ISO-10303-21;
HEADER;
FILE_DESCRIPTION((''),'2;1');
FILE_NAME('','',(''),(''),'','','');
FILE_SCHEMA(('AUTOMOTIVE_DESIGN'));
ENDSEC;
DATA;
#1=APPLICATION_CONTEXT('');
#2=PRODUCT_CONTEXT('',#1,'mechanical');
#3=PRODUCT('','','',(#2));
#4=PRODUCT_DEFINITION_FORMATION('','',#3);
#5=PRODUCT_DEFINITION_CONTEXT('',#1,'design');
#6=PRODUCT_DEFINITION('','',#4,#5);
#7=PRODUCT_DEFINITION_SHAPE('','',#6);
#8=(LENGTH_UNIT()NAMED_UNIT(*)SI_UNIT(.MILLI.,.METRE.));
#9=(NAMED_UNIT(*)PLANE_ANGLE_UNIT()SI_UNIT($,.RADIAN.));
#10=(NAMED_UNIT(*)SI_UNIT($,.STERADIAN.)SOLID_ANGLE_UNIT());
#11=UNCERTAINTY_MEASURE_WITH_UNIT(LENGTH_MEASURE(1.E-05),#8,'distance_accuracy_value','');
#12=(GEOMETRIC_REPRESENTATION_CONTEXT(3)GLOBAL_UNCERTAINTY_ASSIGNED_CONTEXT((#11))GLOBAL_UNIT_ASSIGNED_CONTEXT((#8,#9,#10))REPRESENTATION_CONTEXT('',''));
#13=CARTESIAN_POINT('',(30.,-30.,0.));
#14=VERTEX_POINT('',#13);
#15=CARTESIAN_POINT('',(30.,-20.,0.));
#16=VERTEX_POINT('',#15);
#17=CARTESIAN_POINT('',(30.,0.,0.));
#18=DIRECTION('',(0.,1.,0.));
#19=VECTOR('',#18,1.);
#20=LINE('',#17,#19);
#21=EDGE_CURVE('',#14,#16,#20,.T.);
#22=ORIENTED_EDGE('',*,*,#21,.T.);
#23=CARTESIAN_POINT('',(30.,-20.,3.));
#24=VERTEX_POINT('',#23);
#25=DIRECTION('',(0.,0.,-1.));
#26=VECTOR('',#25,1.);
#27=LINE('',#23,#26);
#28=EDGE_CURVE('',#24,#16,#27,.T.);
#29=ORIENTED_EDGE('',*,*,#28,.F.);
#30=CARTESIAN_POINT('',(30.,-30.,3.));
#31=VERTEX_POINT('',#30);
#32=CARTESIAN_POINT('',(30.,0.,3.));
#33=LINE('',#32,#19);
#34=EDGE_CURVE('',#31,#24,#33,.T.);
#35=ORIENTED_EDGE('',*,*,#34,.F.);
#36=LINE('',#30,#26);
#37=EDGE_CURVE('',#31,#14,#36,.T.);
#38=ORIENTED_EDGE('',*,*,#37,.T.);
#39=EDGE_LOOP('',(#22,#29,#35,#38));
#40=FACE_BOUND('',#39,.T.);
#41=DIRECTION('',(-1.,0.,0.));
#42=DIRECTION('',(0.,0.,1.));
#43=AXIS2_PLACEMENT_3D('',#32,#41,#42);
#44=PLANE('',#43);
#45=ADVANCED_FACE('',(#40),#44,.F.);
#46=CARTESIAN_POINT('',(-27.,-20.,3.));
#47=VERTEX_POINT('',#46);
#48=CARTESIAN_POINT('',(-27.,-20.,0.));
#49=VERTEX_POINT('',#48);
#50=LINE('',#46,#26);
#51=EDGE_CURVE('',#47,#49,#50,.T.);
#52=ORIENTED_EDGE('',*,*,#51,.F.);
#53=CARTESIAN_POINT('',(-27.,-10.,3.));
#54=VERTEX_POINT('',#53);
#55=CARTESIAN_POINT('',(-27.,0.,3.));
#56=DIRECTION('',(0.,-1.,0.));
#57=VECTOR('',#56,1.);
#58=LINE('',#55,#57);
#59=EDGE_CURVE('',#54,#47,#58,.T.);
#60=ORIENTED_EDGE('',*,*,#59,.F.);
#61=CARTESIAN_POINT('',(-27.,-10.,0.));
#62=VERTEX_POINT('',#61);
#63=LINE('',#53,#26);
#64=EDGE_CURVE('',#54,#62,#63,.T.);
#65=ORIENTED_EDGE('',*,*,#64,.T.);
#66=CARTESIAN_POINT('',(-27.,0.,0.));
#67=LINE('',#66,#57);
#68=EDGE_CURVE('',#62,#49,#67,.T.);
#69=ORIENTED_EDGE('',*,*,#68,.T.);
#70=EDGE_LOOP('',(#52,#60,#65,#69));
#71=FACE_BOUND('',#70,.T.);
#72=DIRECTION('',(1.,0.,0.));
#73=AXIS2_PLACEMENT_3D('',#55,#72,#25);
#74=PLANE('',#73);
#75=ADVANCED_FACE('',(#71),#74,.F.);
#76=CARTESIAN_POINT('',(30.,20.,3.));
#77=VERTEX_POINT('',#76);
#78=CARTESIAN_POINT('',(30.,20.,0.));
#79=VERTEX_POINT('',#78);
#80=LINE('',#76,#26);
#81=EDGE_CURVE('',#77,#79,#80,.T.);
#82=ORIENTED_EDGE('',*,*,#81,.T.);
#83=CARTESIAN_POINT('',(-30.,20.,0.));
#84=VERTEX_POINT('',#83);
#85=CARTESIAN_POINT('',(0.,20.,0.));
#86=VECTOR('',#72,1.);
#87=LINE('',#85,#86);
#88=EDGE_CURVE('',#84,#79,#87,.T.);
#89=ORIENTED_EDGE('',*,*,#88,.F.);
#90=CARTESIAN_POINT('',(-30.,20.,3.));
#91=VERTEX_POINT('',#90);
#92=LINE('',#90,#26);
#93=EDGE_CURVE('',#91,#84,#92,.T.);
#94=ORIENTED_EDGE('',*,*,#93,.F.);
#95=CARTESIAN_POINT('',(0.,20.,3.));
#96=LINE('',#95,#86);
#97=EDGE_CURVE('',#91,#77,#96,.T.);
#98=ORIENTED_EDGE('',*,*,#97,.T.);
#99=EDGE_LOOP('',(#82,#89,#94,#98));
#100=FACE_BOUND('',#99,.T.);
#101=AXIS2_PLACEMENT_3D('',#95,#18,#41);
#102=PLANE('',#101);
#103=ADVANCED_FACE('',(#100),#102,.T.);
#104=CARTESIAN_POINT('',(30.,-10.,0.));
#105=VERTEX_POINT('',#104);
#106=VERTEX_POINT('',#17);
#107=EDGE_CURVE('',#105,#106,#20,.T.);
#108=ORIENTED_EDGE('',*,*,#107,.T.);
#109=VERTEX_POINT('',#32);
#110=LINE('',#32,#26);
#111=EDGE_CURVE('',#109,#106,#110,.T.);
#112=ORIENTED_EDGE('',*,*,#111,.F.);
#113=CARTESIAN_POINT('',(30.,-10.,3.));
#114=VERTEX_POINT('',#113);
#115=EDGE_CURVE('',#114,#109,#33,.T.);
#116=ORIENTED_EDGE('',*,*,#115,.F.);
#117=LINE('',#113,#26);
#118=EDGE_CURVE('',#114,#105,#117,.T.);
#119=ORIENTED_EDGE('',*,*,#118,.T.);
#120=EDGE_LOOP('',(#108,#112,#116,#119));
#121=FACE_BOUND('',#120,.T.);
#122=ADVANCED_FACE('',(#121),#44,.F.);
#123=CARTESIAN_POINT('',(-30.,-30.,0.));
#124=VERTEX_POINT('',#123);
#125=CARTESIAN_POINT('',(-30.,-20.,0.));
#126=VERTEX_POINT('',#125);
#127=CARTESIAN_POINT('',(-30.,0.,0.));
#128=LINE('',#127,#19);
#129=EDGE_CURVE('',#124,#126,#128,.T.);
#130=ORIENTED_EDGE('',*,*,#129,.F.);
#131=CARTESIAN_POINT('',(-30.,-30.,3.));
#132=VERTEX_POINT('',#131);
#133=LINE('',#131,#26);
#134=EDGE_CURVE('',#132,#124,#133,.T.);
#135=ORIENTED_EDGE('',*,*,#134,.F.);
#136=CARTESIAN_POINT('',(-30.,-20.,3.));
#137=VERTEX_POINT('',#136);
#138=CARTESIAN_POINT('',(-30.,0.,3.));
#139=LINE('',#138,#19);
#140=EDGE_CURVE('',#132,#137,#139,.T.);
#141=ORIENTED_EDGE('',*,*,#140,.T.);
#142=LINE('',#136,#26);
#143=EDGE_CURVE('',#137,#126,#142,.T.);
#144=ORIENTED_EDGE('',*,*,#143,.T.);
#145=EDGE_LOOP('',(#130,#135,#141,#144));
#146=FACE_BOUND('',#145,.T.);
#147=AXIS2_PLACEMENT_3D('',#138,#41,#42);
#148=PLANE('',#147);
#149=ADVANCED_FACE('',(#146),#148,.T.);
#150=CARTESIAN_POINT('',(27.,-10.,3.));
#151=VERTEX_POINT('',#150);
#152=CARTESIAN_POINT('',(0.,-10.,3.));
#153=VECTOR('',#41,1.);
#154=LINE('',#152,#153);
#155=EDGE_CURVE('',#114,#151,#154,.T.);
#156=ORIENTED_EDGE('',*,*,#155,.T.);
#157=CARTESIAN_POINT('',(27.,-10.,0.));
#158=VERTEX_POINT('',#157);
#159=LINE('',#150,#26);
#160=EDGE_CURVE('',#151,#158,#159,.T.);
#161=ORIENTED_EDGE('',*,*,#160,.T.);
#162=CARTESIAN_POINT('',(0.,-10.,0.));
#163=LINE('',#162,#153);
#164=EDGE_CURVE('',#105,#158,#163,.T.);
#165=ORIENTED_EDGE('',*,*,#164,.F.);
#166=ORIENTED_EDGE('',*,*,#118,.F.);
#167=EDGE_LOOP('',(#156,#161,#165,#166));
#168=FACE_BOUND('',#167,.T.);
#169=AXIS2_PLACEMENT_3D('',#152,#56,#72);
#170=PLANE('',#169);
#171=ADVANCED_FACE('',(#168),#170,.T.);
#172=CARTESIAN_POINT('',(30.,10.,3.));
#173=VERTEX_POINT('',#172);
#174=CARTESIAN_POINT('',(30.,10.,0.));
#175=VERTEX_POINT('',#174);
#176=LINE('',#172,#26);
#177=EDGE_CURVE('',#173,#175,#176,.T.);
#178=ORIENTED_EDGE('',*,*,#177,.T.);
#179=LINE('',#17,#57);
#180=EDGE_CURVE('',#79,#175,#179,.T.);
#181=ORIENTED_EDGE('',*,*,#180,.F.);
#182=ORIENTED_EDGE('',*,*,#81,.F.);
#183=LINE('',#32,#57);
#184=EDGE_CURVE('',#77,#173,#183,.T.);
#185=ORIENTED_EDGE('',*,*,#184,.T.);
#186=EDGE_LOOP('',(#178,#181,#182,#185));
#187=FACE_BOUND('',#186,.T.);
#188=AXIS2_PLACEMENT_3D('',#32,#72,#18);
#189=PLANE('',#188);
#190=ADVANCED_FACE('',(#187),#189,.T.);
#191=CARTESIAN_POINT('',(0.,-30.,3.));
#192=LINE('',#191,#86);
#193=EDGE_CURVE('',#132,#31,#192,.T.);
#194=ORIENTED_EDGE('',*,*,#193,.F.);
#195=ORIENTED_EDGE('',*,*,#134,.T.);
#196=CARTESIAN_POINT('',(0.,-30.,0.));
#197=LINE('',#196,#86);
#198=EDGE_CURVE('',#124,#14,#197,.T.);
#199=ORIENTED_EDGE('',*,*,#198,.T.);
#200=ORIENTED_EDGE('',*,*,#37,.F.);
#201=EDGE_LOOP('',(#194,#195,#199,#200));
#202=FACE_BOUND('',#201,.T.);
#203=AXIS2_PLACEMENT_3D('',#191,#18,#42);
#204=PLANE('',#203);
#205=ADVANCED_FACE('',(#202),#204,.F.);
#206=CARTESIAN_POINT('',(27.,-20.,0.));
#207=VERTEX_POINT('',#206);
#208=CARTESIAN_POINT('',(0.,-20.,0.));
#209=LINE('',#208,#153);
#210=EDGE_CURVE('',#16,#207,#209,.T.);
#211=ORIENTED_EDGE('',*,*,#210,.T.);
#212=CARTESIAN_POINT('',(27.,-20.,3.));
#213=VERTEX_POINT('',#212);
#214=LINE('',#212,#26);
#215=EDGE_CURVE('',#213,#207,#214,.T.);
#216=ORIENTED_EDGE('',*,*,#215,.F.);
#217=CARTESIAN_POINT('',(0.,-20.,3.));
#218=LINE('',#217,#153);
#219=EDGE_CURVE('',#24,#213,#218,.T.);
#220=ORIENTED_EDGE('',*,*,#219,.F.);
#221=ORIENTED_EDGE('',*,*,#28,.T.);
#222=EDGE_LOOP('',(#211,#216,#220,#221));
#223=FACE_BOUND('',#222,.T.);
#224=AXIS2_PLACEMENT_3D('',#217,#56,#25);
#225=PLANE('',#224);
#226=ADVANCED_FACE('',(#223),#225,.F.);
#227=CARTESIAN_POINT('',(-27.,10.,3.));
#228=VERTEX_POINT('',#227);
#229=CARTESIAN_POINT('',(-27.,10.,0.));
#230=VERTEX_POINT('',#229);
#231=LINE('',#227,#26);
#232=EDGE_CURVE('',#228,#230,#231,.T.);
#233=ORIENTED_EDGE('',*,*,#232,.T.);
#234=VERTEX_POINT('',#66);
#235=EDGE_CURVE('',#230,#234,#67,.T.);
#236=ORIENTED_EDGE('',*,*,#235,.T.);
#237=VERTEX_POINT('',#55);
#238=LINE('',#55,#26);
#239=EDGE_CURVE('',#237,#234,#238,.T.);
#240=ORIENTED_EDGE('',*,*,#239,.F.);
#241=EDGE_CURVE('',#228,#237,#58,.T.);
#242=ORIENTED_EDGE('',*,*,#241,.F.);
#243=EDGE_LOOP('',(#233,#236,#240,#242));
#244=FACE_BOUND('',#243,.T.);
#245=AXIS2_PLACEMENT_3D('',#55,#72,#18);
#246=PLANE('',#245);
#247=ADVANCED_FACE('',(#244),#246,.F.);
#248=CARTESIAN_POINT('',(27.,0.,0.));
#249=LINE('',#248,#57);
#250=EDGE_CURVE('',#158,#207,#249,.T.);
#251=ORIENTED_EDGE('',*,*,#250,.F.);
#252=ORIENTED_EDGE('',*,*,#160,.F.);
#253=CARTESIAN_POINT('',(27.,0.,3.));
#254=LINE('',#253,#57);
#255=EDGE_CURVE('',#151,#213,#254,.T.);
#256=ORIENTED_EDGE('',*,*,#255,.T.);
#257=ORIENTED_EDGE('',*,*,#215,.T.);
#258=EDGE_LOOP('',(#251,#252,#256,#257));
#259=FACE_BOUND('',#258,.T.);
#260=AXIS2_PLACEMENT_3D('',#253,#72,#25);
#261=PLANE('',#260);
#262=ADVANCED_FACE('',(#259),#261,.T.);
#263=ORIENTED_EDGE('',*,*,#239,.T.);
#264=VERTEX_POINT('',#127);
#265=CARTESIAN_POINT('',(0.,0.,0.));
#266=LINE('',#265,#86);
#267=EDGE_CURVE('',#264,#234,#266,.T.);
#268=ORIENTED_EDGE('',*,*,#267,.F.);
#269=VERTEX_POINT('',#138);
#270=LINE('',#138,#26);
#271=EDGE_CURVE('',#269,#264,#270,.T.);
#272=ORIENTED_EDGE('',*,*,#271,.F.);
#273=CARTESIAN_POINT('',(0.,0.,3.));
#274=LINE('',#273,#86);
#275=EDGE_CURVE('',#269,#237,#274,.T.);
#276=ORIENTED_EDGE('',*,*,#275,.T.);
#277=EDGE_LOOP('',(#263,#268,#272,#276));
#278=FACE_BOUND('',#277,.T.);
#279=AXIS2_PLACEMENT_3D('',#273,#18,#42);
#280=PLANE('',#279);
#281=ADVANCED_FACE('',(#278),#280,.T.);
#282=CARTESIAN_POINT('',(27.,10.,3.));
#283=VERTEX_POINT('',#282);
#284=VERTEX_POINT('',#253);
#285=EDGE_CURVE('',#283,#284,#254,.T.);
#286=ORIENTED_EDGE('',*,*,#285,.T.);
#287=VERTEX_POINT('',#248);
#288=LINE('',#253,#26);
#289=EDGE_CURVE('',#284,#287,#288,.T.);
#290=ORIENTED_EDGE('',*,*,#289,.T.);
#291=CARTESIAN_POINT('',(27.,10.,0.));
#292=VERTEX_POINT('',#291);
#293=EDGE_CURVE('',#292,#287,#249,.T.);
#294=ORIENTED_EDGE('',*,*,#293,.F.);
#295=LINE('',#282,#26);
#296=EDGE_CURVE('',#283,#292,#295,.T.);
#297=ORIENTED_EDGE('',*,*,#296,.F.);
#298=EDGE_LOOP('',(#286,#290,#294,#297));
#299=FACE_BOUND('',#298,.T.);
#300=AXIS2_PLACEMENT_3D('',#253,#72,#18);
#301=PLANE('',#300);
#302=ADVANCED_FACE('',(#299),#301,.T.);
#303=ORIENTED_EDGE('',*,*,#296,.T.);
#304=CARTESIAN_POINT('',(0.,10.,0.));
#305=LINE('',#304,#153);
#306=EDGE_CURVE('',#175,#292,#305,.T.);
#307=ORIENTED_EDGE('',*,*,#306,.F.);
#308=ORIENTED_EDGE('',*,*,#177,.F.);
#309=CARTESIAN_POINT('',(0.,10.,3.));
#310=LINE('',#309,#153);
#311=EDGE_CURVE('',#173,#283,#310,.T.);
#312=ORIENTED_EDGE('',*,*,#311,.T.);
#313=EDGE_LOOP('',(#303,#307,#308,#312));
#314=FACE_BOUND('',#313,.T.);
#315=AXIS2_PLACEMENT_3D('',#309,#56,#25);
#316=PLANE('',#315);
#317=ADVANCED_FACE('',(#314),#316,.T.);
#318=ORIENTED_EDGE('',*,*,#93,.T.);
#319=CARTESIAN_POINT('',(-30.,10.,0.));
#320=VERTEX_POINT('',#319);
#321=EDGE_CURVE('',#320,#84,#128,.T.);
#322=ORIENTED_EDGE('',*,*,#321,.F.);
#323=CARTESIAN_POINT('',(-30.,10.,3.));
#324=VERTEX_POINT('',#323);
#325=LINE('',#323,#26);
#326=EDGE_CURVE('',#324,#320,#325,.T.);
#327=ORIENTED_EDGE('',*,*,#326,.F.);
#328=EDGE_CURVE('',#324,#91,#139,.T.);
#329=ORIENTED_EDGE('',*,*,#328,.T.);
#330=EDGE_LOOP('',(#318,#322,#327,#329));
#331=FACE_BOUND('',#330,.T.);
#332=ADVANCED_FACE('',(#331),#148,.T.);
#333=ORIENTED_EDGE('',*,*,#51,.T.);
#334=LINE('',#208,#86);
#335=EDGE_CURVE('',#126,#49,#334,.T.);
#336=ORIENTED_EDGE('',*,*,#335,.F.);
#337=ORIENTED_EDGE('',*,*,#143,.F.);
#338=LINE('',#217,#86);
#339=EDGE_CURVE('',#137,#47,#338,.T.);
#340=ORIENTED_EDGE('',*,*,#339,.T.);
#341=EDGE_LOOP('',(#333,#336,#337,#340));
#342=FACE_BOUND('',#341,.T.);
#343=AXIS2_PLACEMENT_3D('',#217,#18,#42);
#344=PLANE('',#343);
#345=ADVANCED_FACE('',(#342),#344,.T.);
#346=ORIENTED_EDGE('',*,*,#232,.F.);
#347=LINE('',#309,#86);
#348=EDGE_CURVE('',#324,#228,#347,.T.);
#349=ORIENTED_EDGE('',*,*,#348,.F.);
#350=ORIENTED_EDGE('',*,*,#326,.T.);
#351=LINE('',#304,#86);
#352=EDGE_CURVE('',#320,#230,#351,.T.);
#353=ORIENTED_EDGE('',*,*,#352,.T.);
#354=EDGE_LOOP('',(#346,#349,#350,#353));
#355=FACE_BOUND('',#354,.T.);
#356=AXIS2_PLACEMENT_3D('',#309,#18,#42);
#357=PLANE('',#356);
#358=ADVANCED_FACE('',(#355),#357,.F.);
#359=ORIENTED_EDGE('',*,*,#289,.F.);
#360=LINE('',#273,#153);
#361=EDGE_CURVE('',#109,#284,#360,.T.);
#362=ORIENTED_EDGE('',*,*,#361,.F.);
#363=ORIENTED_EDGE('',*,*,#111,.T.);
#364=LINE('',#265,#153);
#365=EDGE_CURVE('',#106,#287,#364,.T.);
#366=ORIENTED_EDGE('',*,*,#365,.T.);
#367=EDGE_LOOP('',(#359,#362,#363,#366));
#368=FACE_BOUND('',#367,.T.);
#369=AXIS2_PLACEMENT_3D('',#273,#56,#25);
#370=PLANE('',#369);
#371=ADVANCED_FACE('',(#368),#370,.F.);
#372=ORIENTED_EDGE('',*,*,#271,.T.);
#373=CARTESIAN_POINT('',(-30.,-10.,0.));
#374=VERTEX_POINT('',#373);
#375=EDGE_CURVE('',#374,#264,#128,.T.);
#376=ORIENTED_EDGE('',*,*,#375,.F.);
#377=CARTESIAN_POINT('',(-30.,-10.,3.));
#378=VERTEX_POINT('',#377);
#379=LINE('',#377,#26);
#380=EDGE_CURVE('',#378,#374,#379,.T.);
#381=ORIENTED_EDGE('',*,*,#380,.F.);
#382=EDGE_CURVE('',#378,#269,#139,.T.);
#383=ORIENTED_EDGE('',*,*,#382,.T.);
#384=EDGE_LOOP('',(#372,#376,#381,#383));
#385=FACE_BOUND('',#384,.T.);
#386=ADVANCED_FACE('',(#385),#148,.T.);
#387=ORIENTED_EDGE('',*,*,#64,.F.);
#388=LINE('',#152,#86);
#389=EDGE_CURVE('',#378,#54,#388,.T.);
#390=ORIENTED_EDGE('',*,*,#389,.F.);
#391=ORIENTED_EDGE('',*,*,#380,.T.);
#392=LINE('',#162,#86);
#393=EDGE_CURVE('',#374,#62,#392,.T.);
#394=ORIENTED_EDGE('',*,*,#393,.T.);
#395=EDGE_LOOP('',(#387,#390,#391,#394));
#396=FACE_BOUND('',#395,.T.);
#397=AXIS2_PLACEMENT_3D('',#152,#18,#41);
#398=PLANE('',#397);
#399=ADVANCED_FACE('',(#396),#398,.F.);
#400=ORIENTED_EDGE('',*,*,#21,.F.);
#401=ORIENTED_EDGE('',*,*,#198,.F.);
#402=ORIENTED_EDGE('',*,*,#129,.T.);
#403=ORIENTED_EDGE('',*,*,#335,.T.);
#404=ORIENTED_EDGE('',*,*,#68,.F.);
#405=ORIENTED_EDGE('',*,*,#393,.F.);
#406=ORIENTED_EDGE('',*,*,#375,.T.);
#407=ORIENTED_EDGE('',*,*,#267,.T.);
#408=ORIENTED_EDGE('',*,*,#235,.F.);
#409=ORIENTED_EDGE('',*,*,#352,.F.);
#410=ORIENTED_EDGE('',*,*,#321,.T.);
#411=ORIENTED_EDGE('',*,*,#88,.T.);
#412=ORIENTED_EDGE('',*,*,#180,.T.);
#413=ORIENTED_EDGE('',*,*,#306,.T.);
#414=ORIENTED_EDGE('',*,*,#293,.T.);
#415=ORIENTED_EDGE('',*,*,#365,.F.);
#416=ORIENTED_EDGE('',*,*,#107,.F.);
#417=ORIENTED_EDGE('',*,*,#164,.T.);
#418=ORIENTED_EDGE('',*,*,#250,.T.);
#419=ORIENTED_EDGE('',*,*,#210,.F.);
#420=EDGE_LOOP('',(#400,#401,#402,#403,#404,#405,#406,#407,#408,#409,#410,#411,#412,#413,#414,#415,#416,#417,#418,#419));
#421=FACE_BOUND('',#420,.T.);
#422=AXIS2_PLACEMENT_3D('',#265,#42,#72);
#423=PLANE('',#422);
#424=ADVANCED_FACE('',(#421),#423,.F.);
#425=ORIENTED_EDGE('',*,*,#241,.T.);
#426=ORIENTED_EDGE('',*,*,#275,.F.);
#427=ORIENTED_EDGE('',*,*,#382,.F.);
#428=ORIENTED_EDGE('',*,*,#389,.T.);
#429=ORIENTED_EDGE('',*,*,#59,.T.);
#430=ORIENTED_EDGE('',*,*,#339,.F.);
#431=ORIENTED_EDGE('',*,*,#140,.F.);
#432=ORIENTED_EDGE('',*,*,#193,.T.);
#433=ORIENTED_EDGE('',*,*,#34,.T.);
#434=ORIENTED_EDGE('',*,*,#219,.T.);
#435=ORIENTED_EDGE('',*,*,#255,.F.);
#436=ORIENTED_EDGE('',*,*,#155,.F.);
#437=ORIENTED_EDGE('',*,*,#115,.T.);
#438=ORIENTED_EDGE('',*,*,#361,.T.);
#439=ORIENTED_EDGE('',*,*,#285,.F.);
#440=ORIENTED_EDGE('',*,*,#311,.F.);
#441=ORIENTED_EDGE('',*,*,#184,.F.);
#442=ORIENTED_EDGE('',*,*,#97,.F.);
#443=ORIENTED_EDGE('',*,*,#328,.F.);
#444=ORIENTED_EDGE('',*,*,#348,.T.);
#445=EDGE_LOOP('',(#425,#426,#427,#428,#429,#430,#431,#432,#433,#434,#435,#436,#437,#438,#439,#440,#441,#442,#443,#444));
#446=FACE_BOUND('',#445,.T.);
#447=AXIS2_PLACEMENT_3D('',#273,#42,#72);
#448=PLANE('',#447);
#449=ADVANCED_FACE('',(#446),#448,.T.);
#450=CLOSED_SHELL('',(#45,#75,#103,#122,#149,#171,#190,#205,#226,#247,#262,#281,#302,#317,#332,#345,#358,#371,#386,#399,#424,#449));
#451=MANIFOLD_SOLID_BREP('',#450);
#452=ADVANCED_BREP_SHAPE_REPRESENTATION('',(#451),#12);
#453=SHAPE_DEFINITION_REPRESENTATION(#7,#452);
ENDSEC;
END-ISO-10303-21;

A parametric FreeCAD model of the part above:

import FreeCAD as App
import Part
import Sketcher

doc = App.newDocument("Part")
params = doc.addObject("Spreadsheet::Sheet", "Params")
for row, (alias, value) in enumerate([
    ("sketch1_width", "60 mm"),
    ("sketch1_width2", "3 mm"),
    ("sketch1_height", "10 mm"),
    ("pad1_length", "3 mm"),
], start=1):
    params.set(f"A{row}", alias)
    params.set(f"B{row}", "=" + value)
    params.setAlias(f"B{row}", alias)

body = doc.addObject("PartDesign::Body", "Body")

# Sketch on XY plane
sketch1 = body.newObject("Sketcher::SketchObject", "Sketch")
sketch1.AttachmentSupport = (doc.getObject("XY_Plane"), [""])
sketch1.MapMode = "FlatFace"
sketch1.addGeometry([
    Part.LineSegment(App.Vector(30, 10, 0), App.Vector(30, 20, 0)),  # 0
    Part.LineSegment(App.Vector(30, 20, 0), App.Vector(-30, 20, 0)),  # 1
    Part.LineSegment(App.Vector(-30, 20, 0), App.Vector(-30, 10, 0)),  # 2
    Part.LineSegment(App.Vector(-30, 10, 0), App.Vector(-27, 10, 0)),  # 3
    Part.LineSegment(App.Vector(-27, 10, 0), App.Vector(-27, 0, 0)),  # 4
    Part.LineSegment(App.Vector(-27, 0, 0), App.Vector(-30, 0, 0)),  # 5
    Part.LineSegment(App.Vector(-30, 0, 0), App.Vector(-30, -10, 0)),  # 6
    Part.LineSegment(App.Vector(-30, -10, 0), App.Vector(-27, -10, 0)),  # 7
    Part.LineSegment(App.Vector(-27, -10, 0), App.Vector(-27, -20, 0)),  # 8
    Part.LineSegment(App.Vector(-27, -20, 0), App.Vector(-30, -20, 0)),  # 9
    Part.LineSegment(App.Vector(-30, -20, 0), App.Vector(-30, -30, 0)),  # 10
    Part.LineSegment(App.Vector(-30, -30, 0), App.Vector(30, -30, 0)),  # 11
    Part.LineSegment(App.Vector(30, -30, 0), App.Vector(30, -20, 0)),  # 12
    Part.LineSegment(App.Vector(30, -20, 0), App.Vector(27, -20, 0)),  # 13
    Part.LineSegment(App.Vector(27, -20, 0), App.Vector(27, -10, 0)),  # 14
    Part.LineSegment(App.Vector(27, -10, 0), App.Vector(30, -10, 0)),  # 15
    Part.LineSegment(App.Vector(30, -10, 0), App.Vector(30, 0, 0)),  # 16
    Part.LineSegment(App.Vector(30, 0, 0), App.Vector(27, 0, 0)),  # 17
    Part.LineSegment(App.Vector(27, 0, 0), App.Vector(27, 10, 0)),  # 18
    Part.LineSegment(App.Vector(27, 10, 0), App.Vector(30, 10, 0)),  # 19
], False)
sketch1.addConstraint([
    Sketcher.Constraint("Coincident", 0, 2, 1, 1),
    Sketcher.Constraint("Coincident", 1, 2, 2, 1),
    Sketcher.Constraint("Coincident", 2, 2, 3, 1),
    Sketcher.Constraint("Coincident", 3, 2, 4, 1),
    Sketcher.Constraint("Coincident", 4, 2, 5, 1),
    Sketcher.Constraint("Coincident", 5, 2, 6, 1),
    Sketcher.Constraint("Coincident", 6, 2, 7, 1),
    Sketcher.Constraint("Coincident", 7, 2, 8, 1),
    Sketcher.Constraint("Coincident", 8, 2, 9, 1),
    Sketcher.Constraint("Coincident", 9, 2, 10, 1),
    Sketcher.Constraint("Coincident", 10, 2, 11, 1),
    Sketcher.Constraint("Coincident", 11, 2, 12, 1),
    Sketcher.Constraint("Coincident", 12, 2, 13, 1),
    Sketcher.Constraint("Coincident", 13, 2, 14, 1),
    Sketcher.Constraint("Coincident", 14, 2, 15, 1),
    Sketcher.Constraint("Coincident", 15, 2, 16, 1),
    Sketcher.Constraint("Coincident", 16, 2, 17, 1),
    Sketcher.Constraint("Coincident", 17, 2, 18, 1),
    Sketcher.Constraint("Coincident", 18, 2, 19, 1),
    Sketcher.Constraint("Coincident", 19, 2, 0, 1),
    Sketcher.Constraint("Vertical", 0),
    Sketcher.Constraint("Horizontal", 1),
    Sketcher.Constraint("Vertical", 2),
    Sketcher.Constraint("Horizontal", 3),
    Sketcher.Constraint("Vertical", 4),
    Sketcher.Constraint("Horizontal", 5),
    Sketcher.Constraint("Vertical", 6),
    Sketcher.Constraint("Horizontal", 7),
    Sketcher.Constraint("Vertical", 8),
    Sketcher.Constraint("Horizontal", 9),
    Sketcher.Constraint("Vertical", 10),
    Sketcher.Constraint("Horizontal", 11),
    Sketcher.Constraint("Vertical", 12),
    Sketcher.Constraint("Horizontal", 13),
    Sketcher.Constraint("Vertical", 14),
    Sketcher.Constraint("Horizontal", 15),
    Sketcher.Constraint("Vertical", 16),
    Sketcher.Constraint("Horizontal", 17),
    Sketcher.Constraint("Vertical", 18),
    Sketcher.Constraint("Horizontal", 19),
    Sketcher.Constraint("Symmetric", 0, 2, 9, 2, -1, 1),
    Sketcher.Constraint("Symmetric", 1, 2, 12, 2, -1, 1),
    Sketcher.Constraint("Symmetric", 3, 2, 14, 2, -1, 1),
    Sketcher.Constraint("Symmetric", 5, 2, 16, 2, -1, 1),
    Sketcher.Constraint("Symmetric", 7, 2, 18, 2, -1, 1),
    Sketcher.Constraint("Symmetric", 7, 2, 14, 2, -2),
    Sketcher.Constraint("PointOnObject", 4, 2, -1),
    Sketcher.Constraint("Vertical", 2, 2, 5, 2),
    Sketcher.Constraint("Vertical", 6, 2, 9, 2),
    Sketcher.Constraint("Equal", 2, 4),
    Sketcher.Constraint("Equal", 8, 10),
    Sketcher.Constraint("DistanceX", 1, 2, 1, 1, 60.0),
    Sketcher.Constraint("DistanceX", 3, 1, 3, 2, 3.0),
    Sketcher.Constraint("DistanceY", 0, 1, 0, 2, 10.0),
])
sketch1.setExpression("Constraints[51]", "Params.sketch1_width")
sketch1.setExpression("Constraints[52]", "Params.sketch1_width2")
sketch1.setExpression("Constraints[53]", "Params.sketch1_height")
pad1 = body.newObject("PartDesign::Pad", "Pad")
pad1.Profile = sketch1
pad1.setExpression("Length", "Params.pad1_length")

doc.recompute()
